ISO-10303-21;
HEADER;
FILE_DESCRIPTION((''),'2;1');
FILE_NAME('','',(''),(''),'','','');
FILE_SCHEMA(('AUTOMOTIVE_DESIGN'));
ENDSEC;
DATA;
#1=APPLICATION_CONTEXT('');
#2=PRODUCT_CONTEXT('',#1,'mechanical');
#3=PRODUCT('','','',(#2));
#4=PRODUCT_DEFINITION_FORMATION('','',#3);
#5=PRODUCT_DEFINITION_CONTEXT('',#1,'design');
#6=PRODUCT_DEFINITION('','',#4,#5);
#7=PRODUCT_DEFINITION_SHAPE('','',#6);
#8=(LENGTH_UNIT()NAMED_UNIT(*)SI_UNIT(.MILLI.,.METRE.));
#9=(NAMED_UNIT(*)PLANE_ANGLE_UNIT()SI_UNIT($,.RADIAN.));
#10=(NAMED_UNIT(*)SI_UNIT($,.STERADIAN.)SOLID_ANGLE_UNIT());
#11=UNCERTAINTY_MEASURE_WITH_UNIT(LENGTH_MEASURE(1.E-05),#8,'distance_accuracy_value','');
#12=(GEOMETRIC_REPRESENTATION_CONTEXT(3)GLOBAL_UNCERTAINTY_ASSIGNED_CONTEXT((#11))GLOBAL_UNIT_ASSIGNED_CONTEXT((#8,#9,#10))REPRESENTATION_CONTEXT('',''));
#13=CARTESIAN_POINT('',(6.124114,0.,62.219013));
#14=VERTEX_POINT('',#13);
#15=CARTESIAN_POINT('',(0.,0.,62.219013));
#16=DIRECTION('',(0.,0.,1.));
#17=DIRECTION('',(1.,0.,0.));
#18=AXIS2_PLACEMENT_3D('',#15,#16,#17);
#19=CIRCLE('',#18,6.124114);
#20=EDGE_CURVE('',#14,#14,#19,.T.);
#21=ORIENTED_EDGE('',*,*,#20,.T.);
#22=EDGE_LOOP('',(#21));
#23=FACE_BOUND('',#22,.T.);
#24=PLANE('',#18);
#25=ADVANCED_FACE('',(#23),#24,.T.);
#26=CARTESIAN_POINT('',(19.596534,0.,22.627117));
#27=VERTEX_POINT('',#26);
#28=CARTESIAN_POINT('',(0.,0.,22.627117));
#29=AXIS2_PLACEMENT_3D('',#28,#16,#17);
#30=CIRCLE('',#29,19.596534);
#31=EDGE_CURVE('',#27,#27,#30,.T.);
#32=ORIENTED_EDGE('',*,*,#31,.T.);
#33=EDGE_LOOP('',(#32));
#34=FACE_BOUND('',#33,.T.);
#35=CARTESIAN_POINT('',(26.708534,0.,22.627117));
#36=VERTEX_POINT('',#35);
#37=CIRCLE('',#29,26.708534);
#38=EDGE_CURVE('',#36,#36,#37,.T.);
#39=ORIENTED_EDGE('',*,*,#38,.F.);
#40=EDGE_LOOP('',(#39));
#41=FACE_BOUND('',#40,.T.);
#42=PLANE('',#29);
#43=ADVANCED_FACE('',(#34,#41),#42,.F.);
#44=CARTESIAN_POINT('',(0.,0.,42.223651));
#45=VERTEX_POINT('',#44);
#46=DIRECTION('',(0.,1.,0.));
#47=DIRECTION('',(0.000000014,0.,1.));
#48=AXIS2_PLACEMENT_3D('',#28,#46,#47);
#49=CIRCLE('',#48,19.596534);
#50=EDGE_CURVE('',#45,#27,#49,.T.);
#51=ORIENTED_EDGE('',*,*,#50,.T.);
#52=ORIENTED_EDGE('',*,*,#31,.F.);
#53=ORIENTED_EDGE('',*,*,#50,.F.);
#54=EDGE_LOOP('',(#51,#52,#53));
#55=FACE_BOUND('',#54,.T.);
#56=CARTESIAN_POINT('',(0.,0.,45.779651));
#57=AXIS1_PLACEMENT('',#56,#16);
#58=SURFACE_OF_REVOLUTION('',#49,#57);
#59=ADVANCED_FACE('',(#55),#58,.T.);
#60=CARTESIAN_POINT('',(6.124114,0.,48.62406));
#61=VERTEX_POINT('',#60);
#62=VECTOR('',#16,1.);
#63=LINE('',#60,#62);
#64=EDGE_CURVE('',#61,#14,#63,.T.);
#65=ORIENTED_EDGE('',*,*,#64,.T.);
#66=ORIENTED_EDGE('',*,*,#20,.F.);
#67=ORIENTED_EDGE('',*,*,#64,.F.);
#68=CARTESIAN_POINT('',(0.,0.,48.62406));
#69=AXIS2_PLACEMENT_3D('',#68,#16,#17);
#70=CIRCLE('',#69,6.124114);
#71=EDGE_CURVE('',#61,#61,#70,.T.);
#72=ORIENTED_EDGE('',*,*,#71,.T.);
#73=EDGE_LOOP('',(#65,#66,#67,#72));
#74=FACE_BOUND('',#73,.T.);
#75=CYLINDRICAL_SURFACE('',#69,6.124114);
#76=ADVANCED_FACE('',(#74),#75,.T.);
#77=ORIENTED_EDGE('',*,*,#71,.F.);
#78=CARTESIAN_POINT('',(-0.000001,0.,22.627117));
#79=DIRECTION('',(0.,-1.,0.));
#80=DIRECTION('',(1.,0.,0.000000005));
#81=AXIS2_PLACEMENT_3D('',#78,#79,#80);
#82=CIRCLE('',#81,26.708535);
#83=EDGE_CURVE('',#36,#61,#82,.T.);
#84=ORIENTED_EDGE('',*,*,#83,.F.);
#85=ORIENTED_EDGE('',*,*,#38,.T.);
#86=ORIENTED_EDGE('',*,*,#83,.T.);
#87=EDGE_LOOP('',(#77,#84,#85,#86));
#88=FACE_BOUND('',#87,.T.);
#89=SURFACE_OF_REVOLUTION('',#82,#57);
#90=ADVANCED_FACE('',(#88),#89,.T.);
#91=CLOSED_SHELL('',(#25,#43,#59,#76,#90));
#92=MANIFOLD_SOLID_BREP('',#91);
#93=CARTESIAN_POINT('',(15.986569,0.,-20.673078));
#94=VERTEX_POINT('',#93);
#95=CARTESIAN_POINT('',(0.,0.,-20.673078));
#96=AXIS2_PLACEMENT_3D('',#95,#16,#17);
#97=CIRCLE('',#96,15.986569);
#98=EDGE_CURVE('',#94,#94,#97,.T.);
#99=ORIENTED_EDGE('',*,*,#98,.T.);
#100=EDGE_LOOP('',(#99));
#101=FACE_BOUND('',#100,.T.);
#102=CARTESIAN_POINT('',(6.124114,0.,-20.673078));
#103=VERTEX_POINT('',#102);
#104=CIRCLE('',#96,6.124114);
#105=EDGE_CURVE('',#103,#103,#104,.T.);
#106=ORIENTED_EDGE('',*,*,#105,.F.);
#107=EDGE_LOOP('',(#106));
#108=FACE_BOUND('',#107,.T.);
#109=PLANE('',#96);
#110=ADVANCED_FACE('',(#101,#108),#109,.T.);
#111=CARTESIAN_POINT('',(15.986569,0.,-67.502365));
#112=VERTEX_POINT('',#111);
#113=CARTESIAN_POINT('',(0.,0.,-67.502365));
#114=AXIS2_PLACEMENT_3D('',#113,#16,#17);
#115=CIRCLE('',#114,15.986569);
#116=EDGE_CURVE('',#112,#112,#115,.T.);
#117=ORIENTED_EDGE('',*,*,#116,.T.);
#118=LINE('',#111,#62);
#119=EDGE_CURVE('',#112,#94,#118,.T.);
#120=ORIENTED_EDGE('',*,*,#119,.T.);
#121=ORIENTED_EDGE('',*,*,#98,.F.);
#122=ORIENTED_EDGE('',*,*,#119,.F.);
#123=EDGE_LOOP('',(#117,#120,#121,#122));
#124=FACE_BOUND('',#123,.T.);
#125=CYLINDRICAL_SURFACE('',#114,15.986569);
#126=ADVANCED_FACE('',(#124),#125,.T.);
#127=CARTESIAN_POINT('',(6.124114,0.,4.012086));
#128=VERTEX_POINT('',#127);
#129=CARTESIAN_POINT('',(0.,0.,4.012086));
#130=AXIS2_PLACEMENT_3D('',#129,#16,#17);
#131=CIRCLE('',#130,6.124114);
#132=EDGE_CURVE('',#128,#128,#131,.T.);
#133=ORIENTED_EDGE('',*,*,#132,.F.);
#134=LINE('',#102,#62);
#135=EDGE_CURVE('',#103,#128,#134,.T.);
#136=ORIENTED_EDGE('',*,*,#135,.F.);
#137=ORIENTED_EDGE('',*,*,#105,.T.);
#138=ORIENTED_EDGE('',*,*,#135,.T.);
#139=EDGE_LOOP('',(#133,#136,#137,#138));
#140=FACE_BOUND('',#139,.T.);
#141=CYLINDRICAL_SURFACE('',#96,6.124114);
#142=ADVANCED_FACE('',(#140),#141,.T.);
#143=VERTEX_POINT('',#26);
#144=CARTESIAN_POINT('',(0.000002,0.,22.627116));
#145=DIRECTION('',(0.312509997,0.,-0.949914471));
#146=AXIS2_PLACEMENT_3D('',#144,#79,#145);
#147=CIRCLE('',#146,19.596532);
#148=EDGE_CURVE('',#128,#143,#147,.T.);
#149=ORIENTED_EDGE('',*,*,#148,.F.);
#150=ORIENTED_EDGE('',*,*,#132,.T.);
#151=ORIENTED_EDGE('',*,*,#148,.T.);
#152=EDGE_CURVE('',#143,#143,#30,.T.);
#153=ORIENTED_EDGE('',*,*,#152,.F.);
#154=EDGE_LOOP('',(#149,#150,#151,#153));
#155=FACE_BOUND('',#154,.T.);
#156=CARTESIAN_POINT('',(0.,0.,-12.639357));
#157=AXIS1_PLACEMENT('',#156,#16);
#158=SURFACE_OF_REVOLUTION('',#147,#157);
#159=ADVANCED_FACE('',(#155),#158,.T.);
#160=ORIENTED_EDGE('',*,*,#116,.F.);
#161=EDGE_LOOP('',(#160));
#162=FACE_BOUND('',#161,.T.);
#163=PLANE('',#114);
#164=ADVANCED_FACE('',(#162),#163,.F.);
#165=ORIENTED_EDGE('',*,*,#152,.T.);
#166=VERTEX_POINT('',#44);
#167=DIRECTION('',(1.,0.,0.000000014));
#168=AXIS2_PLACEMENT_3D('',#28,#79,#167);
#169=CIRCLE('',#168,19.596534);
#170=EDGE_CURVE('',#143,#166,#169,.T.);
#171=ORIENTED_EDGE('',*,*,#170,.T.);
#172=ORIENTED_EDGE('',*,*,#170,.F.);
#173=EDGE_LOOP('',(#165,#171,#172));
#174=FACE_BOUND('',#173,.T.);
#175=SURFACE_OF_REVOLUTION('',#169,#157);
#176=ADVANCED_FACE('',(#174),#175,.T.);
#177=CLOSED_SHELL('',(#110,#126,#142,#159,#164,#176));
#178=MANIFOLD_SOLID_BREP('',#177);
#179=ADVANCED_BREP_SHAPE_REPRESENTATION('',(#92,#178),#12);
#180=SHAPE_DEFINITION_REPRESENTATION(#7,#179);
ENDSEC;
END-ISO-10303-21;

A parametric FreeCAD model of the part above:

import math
import FreeCAD as App
import Part
import Sketcher

V = App.Vector
Q = App.Units.Quantity

doc = App.newDocument("Part")
body = doc.addObject("PartDesign::Body", "Body")

sketch1 = body.newObject("Sketcher::SketchObject", "Sketch")
sketch1.AttachmentSupport = (doc.getObject("XZ_Plane"), [""])
sketch1.MapMode = "FlatFace"
sketch1.addGeometry([
    Part.LineSegment(V(6.124114, -20.673078, 0), V(6.124114, 4.012086, 0)),
    Part.ArcOfCircle(Part.Circle(V(0.000002, 22.627116, 0), V(0, 0, 1), 19.596532), math.radians(-71.78944), math.radians(0.000004)),
    Part.ArcOfCircle(Part.Circle(V(0, 22.627117, 0), V(0, 0, 1), 19.596534), math.radians(0.000001), math.radians(89.999999)),
    Part.LineSegment(V(0, 42.223651, 0), V(0, -67.502365, 0)),
    Part.LineSegment(V(0, -67.502365, 0), V(15.986569, -67.502365, 0)),
    Part.LineSegment(V(15.986569, -67.502365, 0), V(15.986569, -20.673078, 0)),
    Part.LineSegment(V(15.986569, -20.673078, 0), V(6.124114, -20.673078, 0)),
], False)
sketch1.addConstraint([
    Sketcher.Constraint("Coincident", 0, 2, 1, 1),
    Sketcher.Constraint("Tangent", 1, 2, 2, 1),
    Sketcher.Constraint("Coincident", 2, 2, 3, 1),
    Sketcher.Constraint("Coincident", 3, 2, 4, 1),
    Sketcher.Constraint("Coincident", 4, 2, 5, 1),
    Sketcher.Constraint("Coincident", 5, 2, 6, 1),
    Sketcher.Constraint("Coincident", 6, 2, 0, 1),
    Sketcher.Constraint("Vertical", 0),
    Sketcher.Constraint("Vertical", 3),
    Sketcher.Constraint("Horizontal", 4),
    Sketcher.Constraint("Vertical", 5),
    Sketcher.Constraint("Horizontal", 6),
    Sketcher.Constraint("PointOnObject", 1, 3, -2),
    Sketcher.Constraint("PointOnObject", 2, 3, -2),
    Sketcher.Constraint("PointOnObject", 2, 2, -2),
    Sketcher.Constraint("Horizontal", 2, 3, 1, 2),
    Sketcher.Constraint("Radius", 1, 19.596532),
    Sketcher.Constraint("DistanceX", 4, 1, 4, 2, 15.986569),
    Sketcher.Constraint("DistanceX", 6, 2, 6, 1, 9.862455),
    Sketcher.Constraint("DistanceY", 0, 1, 0, 2, 24.685164),
    Sketcher.Constraint("DistanceY", 3, 2, 3, 1, 109.726016),
    Sketcher.Constraint("DistanceY", -1, 1, 2, 2, 42.223651),
])
revolution = body.newObject("PartDesign::Revolution", "Revolution")
revolution.Profile = sketch1
revolution.ReferenceAxis = (sketch1, ["V_Axis"])
revolution.Angle = 360
body2 = doc.addObject("PartDesign::Body", "Body001")

sketch2 = body2.newObject("Sketcher::SketchObject", "Sketch001")
sketch2.AttachmentSupport = (doc.getObject("XZ_Plane001"), [""])
sketch2.MapMode = "FlatFace"
sketch2.addGeometry([
    Part.ArcOfCircle(Part.Circle(V(0, 22.627117, 0), V(0, 0, 1), 19.596534), math.radians(0.000001), math.radians(89.999999)),
    Part.LineSegment(V(19.596534, 22.627117, 0), V(26.708534, 22.627117, 0)),
    Part.ArcOfCircle(Part.Circle(V(-0.000001, 22.627117, 0), V(0, 0, 1), 26.708535), math.radians(0), math.radians(76.744472)),
    Part.LineSegment(V(6.124114, 48.62406, 0), V(6.124114, 62.219013, 0)),
    Part.LineSegment(V(6.124114, 62.219013, 0), V(0, 62.219013, 0)),
    Part.LineSegment(V(0, 62.219013, 0), V(0, 42.223651, 0)),
], False)
sketch2.addConstraint([
    Sketcher.Constraint("Coincident", 0, 1, 1, 1),
    Sketcher.Constraint("Coincident", 1, 2, 2, 1),
    Sketcher.Constraint("Coincident", 2, 2, 3, 1),
    Sketcher.Constraint("Coincident", 3, 2, 4, 1),
    Sketcher.Constraint("Coincident", 4, 2, 5, 1),
    Sketcher.Constraint("Coincident", 5, 2, 0, 2),
    Sketcher.Constraint("Horizontal", 1),
    Sketcher.Constraint("Vertical", 3),
    Sketcher.Constraint("Horizontal", 4),
    Sketcher.Constraint("Vertical", 5),
    Sketcher.Constraint("Coincident", 2, 3, 0, 3),
    Sketcher.Constraint("PointOnObject", 0, 3, -2),
    Sketcher.Constraint("PointOnObject", 4, 2, -2),
    Sketcher.Constraint("Horizontal", 2, 3, 0, 1),
    Sketcher.Constraint("DistanceX", 1, 1, 1, 2, Q("0.28 in")),
    Sketcher.Constraint("Radius", 0, 19.596534),
    Sketcher.Constraint("DistanceY", 5, 2, 5, 1, 19.995362),
    Sketcher.Constraint("DistanceX", 4, 2, 4, 1, 6.124114),
    Sketcher.Constraint("DistanceY", -1, 1, 2, 2, 48.62406),
])
revolution2 = body2.newObject("PartDesign::Revolution", "Revolution001")
revolution2.Profile = sketch2
revolution2.ReferenceAxis = (sketch2, ["V_Axis"])
revolution2.Angle = 360

doc.recompute()
